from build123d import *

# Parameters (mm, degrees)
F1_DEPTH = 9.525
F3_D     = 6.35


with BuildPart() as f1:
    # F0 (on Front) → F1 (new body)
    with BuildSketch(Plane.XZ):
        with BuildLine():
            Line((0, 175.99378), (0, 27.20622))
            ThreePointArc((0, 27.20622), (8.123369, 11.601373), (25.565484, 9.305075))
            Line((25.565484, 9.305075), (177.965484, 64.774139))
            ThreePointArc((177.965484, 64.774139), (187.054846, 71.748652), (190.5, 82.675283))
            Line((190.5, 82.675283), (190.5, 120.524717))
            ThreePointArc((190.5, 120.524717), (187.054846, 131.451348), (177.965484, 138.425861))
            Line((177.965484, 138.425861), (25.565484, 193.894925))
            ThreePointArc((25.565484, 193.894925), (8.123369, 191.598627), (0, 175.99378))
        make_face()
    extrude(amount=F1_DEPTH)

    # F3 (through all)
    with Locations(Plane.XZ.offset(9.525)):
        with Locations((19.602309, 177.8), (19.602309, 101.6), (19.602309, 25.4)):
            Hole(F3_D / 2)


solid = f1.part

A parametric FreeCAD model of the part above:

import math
import FreeCAD as App
import Part
import Sketcher
Q = App.Units.Quantity

doc = App.newDocument("Part")
params = doc.addObject("Spreadsheet::Sheet", "Params")
for row, (alias, value) in enumerate([
    ("sketch1_radius", "0.75 in"),
    ("pad1_length", "0.375 in"),
    ("sketch2_diameter", "0.25 in"),
    ("hole_diameter", "0.25 in"),
], start=1):
    params.set(f"A{row}", alias)
    params.set(f"B{row}", "=" + value)
    params.setAlias(f"B{row}", alias)

body = doc.addObject("PartDesign::Body", "Body")

# Sketch on XZ plane
sketch1 = body.newObject("Sketcher::SketchObject", "Sketch")
sketch1.AttachmentSupport = (doc.getObject("XZ_Plane"), [""])
sketch1.MapMode = "FlatFace"
sketch1.addGeometry(Part.LineSegment(App.Vector(0, 176, 0), App.Vector(0, 27, 0)), False)
sketch1.addGeometry(Part.ArcOfCircle(Part.Circle(App.Vector(19, 27, 0), App.Vector(0, 0, 1), 19), math.radians(180), math.radians(290)), False)
sketch1.addGeometry(Part.LineSegment(App.Vector(26, 9, 0), App.Vector(178, 65, 0)), False)
sketch1.addGeometry(Part.ArcOfCircle(Part.Circle(App.Vector(171, 83, 0), App.Vector(0, 0, 1), 19), math.radians(-70), math.radians(0)), False)
sketch1.addGeometry(Part.LineSegment(App.Vector(190, 83, 0), App.Vector(190, 121, 0)), False)
sketch1.addGeometry(Part.ArcOfCircle(Part.Circle(App.Vector(171, 121, 0), App.Vector(0, 0, 1), 19), math.radians(0), math.radians(70)), False)
sketch1.addGeometry(Part.LineSegment(App.Vector(178, 138, 0), App.Vector(26, 194, 0)), False)
sketch1.addGeometry(Part.ArcOfCircle(Part.Circle(App.Vector(19, 176, 0), App.Vector(0, 0, 1), 19), math.radians(70), math.radians(180)), False)
sketch1.addConstraint(Sketcher.Constraint("Tangent", 0, 2, 1, 1))
sketch1.addConstraint(Sketcher.Constraint("Tangent", 1, 2, 2, 1))
sketch1.addConstraint(Sketcher.Constraint("Tangent", 2, 2, 3, 1))
sketch1.addConstraint(Sketcher.Constraint("Tangent", 3, 2, 4, 1))
sketch1.addConstraint(Sketcher.Constraint("Tangent", 4, 2, 5, 1))
sketch1.addConstraint(Sketcher.Constraint("Tangent", 5, 2, 6, 1))
sketch1.addConstraint(Sketcher.Constraint("Tangent", 6, 2, 7, 1))
sketch1.addConstraint(Sketcher.Constraint("Tangent", 7, 2, 0, 1))
sketch1.addConstraint(Sketcher.Constraint("Vertical", 0))
sketch1.addConstraint(Sketcher.Constraint("Vertical", 4))
sketch1.addConstraint(Sketcher.Constraint("Equal", 1, 3))
sketch1.addConstraint(Sketcher.Constraint("Equal", 3, 5))
sketch1.addConstraint(Sketcher.Constraint("Equal", 5, 7))
sketch1.addConstraint(Sketcher.Constraint("PointOnObject", 0, 2, -2))
sketch1.addConstraint(Sketcher.Constraint("Vertical", 2, 2, 5, 2))
sketch1.addConstraint(Sketcher.Constraint("Radius", 1, Q("0.75 in")))
sketch1.addConstraint(Sketcher.Constraint("Angle", 2, Q("20 deg")))
sketch1.addConstraint(Sketcher.Constraint("DistanceX", 1, 3, 3, 3, Q("5.9999999 in")))
sketch1.addConstraint(Sketcher.Constraint("DistanceY", 0, 2, 0, 1, 148.78756))
sketch1.addConstraint(Sketcher.Constraint("DistanceY", -1, 1, 1, 3, 27.20622))
sketch1.setExpression("Constraints[15]", "Params.sketch1_radius")
pad1 = body.newObject("PartDesign::Pad", "Pad")
pad1.Profile = sketch1
pad1.setExpression("Length", "Params.pad1_length")

# Sketch on XZ plane
sketch2 = body.newObject("Sketcher::SketchObject", "Sketch001")
sketch2.AttachmentSupport = (doc.getObject("XZ_Plane"), [""])
sketch2.MapMode = "FlatFace"
sketch2.AttachmentOffset = App.Placement(App.Vector(0, 0, 0.375 * 25.4), App.Rotation())
sketch2.addGeometry(Part.Circle(App.Vector(19.6, 177.8, 0), App.Vector(0, 0, 1), 3.2), False)
sketch2.addGeometry(Part.Circle(App.Vector(19.6, 101.6, 0), App.Vector(0, 0, 1), 3.2), False)
sketch2.addGeometry(Part.Circle(App.Vector(19.6, 25.4, 0), App.Vector(0, 0, 1), 3.2), False)
sketch2.addConstraint(Sketcher.Constraint("Equal", 0, 1))
sketch2.addConstraint(Sketcher.Constraint("Equal", 1, 2))
sketch2.addConstraint(Sketcher.Constraint("Vertical", 0, 3, 1, 3))
sketch2.addConstraint(Sketcher.Constraint("Vertical", 1, 3, 2, 3))
sketch2.addConstraint(Sketcher.Constraint("Diameter", 0, Q("0.25 in")))
sketch2.addConstraint(Sketcher.Constraint("DistanceY", -1, 1, 0, 3, Q("7 in")))
sketch2.addConstraint(Sketcher.Constraint("DistanceY", -1, 1, 1, 3, Q("4 in")))
sketch2.addConstraint(Sketcher.Constraint("DistanceY", -1, 1, 2, 3, Q("1 in")))
sketch2.addConstraint(Sketcher.Constraint("DistanceX", -1, 1, 0, 3, 19.602309))
sketch2.setExpression("Constraints[4]", "Params.sketch2_diameter")
doc.recompute()
hole = body.newObject("PartDesign::Hole", "Hole")
hole.Profile = sketch2
hole.ThreadType = "None"
hole.setExpression("Diameter", "Params.hole_diameter")
hole.DepthType = "ThroughAll"

doc.recompute()
